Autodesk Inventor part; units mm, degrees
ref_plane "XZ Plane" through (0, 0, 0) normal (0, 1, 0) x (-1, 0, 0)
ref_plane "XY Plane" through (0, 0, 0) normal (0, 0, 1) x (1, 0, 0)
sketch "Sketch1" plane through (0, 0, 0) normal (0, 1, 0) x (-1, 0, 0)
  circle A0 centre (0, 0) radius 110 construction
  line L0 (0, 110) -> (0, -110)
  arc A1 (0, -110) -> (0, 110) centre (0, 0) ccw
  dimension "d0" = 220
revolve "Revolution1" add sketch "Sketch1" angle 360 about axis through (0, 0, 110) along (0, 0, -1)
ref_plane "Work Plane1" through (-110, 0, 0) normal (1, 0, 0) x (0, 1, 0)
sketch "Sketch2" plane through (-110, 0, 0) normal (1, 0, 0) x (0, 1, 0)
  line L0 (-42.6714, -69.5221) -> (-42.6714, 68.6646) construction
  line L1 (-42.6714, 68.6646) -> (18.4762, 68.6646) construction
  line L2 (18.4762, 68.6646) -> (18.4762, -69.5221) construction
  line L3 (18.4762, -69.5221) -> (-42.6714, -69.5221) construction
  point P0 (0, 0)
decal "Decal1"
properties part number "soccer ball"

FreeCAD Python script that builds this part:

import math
import FreeCAD as App
import Part
import Sketcher

V = App.Vector
Q = App.Units.Quantity

doc = App.newDocument("Part")
params = doc.addObject("Spreadsheet::Sheet", "Params")
for row, (alias, value) in enumerate([
    ("sketch1_radius", "110 mm"),
    ("revolution_angle", "360 deg"),
], start=1):
    params.set(f"A{row}", alias)
    params.set(f"B{row}", "=" + value)
    params.setAlias(f"B{row}", alias)

body = doc.addObject("PartDesign::Body", "Body")

# Sketch on XZ plane
sketch1 = doc.addObject("Sketcher::SketchObject", "Sketch")
body.addObject(sketch1)
sketch1.AttachmentSupport = (doc.XZ_Plane, [""])
sketch1.MapMode = "FlatFace"
sketch1.addGeometry(Part.ArcOfCircle(Part.Circle(V(0, 0, 0), V(0, 0, 1), 110), math.radians(90), math.radians(270)), False)
sketch1.addGeometry(Part.LineSegment(V(0, 110, 0), V(0, -110, 0)), False)
sketch1.addConstraint(Sketcher.Constraint("Coincident", 0, 1, 1, 1))
sketch1.addConstraint(Sketcher.Constraint("Coincident", 1, 2, 0, 2))
sketch1.addConstraint(Sketcher.Constraint("Vertical", 1))
sketch1.addConstraint(Sketcher.Constraint("Coincident", 0, 3, -1, 1))
sketch1.addConstraint(Sketcher.Constraint("PointOnObject", 0, 1, -2))
sketch1.addConstraint(Sketcher.Constraint("Radius", 0, Q("110 mm")))
sketch1.setExpression("Constraints[5]", "Params.sketch1_radius")
revolution = doc.addObject("PartDesign::Revolution", "Revolution")
body.addObject(revolution)
revolution.Profile = sketch1
revolution.ReferenceAxis = (sketch1, ["V_Axis"])
revolution.setExpression("Angle", "Params.revolution_angle")

doc.recompute()
